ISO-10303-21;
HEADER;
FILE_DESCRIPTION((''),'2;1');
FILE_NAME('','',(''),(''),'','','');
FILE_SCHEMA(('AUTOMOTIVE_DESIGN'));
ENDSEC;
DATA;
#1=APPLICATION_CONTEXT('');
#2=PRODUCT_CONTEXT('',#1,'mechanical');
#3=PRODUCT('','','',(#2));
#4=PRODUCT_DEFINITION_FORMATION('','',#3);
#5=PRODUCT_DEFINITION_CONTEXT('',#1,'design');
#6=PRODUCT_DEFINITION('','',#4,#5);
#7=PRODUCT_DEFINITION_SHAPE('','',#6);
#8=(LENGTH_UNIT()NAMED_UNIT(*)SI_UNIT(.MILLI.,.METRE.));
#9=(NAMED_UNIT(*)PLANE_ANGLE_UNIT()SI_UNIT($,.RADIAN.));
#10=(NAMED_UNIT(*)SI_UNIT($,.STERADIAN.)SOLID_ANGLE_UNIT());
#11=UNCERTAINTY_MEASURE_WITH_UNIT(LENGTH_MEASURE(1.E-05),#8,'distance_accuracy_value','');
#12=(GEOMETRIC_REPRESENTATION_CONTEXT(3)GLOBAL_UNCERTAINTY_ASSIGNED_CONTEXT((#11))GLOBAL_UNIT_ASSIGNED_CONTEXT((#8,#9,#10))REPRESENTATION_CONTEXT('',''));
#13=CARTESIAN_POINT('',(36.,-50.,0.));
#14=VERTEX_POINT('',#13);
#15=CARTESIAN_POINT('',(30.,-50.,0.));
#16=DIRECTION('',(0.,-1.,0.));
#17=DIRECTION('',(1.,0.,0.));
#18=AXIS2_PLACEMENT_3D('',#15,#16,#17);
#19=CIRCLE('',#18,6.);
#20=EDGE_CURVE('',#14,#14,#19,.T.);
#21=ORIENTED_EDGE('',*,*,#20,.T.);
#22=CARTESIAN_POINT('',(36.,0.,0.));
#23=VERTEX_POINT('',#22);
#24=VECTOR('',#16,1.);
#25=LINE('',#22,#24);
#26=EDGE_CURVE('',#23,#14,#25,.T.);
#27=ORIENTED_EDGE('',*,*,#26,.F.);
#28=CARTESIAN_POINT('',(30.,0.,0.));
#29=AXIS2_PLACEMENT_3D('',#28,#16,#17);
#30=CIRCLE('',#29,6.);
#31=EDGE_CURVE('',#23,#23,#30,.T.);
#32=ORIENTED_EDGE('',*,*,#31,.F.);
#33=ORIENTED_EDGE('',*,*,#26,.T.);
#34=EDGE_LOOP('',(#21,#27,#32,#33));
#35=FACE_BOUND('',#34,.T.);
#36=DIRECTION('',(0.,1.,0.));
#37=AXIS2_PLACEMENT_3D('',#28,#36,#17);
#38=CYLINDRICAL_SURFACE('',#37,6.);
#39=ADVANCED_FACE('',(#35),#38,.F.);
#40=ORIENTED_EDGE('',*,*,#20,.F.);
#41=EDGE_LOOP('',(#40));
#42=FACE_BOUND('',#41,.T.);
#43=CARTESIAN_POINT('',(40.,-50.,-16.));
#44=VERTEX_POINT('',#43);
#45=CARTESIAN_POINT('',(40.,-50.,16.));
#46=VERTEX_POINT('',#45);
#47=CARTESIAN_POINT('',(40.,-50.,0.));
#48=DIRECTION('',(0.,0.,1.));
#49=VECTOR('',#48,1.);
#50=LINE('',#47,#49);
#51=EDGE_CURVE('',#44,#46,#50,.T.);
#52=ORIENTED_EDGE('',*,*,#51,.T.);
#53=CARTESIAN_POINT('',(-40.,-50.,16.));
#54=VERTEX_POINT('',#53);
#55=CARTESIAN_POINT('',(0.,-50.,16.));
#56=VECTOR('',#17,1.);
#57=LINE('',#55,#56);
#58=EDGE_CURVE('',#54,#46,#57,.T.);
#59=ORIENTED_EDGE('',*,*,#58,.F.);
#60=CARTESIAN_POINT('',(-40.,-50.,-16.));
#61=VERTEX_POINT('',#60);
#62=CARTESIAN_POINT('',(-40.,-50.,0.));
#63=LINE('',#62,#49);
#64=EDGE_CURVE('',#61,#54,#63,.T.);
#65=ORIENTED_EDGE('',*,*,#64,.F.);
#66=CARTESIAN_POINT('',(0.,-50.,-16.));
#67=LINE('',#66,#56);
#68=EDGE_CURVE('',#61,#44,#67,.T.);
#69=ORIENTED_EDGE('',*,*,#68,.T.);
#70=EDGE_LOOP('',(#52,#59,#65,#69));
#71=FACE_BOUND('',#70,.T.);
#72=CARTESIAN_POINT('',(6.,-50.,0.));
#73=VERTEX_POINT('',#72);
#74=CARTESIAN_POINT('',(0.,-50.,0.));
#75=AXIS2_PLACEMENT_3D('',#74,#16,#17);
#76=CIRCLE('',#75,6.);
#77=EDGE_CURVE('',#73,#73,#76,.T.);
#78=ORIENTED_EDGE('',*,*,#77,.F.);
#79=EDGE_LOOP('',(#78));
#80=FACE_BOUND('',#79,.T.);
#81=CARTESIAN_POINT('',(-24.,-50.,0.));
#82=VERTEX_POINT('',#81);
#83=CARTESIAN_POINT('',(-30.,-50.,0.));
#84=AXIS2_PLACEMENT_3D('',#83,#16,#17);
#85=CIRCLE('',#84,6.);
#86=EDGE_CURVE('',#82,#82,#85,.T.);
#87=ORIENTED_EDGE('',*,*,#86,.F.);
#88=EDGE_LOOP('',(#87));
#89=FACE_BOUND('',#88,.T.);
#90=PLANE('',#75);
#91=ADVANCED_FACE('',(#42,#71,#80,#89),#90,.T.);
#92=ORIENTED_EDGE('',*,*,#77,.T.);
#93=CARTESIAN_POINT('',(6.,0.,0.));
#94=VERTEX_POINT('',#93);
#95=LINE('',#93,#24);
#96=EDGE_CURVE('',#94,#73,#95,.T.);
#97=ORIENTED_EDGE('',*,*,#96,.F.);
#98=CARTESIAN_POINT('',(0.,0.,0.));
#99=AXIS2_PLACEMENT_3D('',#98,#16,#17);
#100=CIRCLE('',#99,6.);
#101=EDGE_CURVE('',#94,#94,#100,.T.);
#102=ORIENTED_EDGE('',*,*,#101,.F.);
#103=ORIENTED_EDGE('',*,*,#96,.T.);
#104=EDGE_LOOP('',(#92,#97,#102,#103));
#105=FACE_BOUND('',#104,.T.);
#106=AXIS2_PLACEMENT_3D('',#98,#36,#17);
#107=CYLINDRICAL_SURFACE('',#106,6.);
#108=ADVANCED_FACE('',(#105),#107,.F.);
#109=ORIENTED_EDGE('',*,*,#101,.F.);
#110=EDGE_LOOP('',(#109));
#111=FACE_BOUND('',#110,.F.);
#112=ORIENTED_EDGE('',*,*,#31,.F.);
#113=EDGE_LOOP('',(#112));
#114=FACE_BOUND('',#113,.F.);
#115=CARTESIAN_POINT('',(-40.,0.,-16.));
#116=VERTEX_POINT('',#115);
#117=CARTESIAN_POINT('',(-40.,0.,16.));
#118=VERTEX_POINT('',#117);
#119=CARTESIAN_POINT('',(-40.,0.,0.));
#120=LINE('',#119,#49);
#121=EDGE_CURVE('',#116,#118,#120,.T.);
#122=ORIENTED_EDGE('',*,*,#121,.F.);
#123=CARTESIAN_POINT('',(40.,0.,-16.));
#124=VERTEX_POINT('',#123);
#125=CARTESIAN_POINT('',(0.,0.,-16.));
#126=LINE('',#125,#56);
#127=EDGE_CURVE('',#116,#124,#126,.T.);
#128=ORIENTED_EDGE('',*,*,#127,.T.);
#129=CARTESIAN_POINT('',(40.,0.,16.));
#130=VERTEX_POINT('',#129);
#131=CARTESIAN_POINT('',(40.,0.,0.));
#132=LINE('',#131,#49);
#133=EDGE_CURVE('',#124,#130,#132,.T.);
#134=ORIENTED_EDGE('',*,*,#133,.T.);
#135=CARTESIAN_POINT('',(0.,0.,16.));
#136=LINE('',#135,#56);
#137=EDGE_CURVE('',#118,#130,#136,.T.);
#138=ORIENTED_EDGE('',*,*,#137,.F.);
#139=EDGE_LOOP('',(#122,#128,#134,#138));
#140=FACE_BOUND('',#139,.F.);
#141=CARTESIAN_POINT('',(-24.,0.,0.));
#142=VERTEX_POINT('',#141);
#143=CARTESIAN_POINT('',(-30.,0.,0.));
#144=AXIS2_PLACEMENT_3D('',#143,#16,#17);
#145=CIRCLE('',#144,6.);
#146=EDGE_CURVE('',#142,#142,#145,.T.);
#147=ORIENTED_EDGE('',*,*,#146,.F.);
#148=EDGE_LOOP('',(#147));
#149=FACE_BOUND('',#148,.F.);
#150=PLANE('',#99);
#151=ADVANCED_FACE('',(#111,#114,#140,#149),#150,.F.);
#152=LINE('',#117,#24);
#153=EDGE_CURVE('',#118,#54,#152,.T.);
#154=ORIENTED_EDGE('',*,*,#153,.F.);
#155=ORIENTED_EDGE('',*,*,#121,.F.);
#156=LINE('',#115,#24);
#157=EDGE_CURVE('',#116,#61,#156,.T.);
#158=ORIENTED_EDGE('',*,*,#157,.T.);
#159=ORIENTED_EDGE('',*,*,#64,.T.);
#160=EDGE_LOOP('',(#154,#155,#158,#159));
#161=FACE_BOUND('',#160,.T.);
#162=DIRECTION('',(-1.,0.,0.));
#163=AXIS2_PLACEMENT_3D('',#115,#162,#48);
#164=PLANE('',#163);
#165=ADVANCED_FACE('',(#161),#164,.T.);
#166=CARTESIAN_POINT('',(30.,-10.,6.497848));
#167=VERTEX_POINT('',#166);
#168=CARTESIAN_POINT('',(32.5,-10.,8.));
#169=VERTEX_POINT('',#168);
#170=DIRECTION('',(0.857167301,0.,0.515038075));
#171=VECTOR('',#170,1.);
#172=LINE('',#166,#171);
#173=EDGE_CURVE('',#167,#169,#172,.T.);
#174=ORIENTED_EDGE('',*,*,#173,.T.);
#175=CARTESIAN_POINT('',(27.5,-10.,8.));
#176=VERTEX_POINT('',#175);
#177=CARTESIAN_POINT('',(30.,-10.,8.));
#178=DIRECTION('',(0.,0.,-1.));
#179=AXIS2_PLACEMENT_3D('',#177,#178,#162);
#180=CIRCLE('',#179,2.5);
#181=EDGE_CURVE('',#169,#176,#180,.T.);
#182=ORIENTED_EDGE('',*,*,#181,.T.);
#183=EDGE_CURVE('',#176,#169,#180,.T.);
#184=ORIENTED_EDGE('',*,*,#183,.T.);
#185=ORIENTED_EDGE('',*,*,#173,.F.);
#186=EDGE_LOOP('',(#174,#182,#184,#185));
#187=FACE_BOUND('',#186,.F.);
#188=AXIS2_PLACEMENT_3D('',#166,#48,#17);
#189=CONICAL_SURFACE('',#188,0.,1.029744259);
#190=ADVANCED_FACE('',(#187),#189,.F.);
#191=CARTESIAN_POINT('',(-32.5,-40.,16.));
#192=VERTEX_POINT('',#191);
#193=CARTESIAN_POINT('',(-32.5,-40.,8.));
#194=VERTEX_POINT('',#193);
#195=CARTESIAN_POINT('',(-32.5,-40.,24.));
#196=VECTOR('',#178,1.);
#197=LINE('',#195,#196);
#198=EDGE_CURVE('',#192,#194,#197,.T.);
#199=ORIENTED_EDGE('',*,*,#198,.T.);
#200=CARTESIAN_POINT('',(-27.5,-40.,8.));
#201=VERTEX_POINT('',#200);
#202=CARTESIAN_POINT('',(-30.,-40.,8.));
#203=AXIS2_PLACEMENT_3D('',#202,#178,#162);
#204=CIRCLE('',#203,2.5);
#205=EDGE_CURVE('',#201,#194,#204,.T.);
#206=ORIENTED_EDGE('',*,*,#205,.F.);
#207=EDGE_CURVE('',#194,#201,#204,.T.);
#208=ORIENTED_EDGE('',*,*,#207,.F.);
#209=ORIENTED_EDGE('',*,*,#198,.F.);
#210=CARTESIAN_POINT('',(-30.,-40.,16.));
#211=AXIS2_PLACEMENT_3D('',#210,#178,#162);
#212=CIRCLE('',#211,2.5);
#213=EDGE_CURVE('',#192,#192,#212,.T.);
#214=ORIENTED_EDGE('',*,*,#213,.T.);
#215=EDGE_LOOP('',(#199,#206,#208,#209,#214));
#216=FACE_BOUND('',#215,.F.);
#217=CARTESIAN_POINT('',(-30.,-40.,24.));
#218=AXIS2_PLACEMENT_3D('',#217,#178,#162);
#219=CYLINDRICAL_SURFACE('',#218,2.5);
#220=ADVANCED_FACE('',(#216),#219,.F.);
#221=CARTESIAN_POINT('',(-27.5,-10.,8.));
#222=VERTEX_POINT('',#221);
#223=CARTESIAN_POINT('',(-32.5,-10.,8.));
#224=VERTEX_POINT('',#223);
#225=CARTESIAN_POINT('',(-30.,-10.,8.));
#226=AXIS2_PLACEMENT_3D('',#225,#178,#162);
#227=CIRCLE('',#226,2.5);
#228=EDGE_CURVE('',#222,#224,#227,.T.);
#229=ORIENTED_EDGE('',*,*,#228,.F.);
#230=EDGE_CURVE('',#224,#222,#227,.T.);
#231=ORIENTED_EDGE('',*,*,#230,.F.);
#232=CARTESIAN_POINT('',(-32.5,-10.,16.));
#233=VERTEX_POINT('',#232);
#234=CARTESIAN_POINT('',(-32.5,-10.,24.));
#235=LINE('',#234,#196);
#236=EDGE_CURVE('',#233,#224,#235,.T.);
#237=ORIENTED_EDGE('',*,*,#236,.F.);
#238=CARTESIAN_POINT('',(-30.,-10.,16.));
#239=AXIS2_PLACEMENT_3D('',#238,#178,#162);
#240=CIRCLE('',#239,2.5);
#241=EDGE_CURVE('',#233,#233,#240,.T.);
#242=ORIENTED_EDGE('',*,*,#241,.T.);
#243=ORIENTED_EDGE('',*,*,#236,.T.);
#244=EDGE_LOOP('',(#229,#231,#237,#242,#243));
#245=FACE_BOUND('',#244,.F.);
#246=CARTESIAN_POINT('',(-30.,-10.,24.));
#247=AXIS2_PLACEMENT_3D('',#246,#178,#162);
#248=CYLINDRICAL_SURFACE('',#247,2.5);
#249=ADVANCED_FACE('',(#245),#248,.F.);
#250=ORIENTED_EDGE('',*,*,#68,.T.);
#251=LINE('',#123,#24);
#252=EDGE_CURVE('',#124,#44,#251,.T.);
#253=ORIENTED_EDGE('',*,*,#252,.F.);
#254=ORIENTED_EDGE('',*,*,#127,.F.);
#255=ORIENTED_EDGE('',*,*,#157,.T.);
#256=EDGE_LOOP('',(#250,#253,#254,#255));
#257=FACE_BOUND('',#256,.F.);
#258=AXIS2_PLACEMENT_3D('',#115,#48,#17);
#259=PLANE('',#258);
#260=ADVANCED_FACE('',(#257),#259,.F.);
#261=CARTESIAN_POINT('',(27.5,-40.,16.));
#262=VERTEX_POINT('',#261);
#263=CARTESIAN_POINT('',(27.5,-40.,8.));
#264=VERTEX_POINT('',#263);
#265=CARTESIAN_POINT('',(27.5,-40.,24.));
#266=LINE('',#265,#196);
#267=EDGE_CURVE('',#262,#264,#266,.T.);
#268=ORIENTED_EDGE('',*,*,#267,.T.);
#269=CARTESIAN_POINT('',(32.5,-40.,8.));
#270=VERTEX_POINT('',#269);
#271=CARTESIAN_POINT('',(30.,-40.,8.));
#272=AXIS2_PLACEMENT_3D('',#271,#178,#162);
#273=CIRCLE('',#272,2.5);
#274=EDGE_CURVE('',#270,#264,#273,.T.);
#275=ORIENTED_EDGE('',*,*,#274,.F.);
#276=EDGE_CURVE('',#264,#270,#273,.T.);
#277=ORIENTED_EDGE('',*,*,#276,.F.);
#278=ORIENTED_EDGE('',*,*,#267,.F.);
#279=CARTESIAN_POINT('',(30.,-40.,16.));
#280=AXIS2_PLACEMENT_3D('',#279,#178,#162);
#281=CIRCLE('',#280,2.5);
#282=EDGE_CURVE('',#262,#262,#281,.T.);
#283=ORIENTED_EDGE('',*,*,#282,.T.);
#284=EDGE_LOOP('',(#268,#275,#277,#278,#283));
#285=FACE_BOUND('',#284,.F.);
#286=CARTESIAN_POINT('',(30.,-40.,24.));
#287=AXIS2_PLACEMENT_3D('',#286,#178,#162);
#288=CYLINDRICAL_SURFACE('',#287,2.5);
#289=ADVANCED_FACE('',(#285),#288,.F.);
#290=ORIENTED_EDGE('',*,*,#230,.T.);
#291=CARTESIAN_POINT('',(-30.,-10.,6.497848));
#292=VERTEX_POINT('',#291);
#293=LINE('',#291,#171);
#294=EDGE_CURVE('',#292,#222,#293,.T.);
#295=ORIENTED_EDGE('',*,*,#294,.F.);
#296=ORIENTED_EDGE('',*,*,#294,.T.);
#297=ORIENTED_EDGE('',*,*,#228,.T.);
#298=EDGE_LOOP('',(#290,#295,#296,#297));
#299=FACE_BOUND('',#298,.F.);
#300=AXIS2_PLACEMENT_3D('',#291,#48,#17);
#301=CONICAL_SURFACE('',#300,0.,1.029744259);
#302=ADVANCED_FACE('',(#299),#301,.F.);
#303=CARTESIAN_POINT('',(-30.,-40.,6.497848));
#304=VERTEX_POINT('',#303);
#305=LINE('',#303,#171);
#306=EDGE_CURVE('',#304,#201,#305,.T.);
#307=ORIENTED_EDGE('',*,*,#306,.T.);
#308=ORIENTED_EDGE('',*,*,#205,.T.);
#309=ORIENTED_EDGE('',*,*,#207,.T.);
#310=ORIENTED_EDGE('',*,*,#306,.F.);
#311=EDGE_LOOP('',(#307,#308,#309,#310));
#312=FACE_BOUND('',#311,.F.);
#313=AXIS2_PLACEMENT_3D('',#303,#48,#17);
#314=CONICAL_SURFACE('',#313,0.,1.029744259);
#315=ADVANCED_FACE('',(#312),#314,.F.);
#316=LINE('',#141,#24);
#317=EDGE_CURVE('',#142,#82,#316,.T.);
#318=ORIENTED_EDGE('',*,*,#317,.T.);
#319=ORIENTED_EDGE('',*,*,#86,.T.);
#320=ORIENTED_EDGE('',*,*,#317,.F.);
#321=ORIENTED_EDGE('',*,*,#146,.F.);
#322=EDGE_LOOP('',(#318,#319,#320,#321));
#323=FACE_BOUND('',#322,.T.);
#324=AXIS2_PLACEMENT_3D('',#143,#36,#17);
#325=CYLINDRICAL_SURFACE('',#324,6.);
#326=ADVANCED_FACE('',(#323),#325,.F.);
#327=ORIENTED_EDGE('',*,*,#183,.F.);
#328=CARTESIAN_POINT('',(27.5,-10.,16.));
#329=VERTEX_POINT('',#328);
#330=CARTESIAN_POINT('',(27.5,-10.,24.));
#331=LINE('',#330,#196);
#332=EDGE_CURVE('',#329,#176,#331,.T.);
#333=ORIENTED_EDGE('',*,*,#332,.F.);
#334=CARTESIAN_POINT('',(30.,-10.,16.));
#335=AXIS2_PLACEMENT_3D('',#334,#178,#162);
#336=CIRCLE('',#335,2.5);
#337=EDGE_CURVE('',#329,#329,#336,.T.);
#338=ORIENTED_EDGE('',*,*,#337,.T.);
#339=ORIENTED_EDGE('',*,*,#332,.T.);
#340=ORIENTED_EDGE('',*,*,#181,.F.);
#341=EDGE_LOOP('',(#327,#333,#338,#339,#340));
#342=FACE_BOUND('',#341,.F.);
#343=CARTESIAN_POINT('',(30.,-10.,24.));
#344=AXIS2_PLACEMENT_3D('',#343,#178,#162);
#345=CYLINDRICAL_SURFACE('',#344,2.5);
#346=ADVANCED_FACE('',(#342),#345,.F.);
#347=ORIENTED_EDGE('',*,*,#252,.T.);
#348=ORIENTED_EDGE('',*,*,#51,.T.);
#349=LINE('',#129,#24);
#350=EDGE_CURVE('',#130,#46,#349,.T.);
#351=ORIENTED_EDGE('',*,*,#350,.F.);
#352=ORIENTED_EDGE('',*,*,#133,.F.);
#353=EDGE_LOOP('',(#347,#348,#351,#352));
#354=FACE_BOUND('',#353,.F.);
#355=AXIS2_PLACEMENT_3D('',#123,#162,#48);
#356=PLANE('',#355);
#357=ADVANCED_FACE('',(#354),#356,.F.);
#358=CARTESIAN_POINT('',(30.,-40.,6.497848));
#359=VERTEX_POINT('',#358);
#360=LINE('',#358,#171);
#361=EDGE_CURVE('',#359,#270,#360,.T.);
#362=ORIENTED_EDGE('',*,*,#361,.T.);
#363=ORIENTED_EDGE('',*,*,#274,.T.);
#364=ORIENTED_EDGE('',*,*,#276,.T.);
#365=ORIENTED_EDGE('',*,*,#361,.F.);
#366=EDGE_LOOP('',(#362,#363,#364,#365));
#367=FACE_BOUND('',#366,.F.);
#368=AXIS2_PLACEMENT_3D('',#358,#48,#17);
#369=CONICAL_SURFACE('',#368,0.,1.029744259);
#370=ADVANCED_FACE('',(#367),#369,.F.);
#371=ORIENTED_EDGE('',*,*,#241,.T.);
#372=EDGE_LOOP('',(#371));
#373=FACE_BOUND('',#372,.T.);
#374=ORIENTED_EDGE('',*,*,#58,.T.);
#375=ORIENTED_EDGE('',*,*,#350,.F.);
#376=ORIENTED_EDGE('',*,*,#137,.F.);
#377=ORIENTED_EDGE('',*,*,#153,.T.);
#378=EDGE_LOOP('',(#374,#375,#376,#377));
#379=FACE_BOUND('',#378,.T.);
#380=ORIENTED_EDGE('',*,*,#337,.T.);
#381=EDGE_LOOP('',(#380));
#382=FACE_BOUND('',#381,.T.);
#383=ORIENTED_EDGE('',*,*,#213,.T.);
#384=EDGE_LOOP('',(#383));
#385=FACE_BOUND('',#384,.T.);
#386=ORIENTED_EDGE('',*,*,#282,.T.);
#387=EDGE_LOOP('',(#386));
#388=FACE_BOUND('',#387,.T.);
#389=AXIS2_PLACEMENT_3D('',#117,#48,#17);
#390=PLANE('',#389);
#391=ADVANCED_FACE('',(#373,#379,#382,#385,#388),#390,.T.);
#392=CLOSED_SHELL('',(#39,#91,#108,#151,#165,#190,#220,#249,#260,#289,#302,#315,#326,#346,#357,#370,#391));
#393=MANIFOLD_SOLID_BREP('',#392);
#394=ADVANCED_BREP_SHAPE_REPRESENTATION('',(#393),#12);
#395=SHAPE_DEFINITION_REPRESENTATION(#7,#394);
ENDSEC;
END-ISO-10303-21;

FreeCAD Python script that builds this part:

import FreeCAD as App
import Part
import Sketcher
from FreeCAD import Vector
Q = App.Units.Quantity

doc = App.newDocument("Part")
body = doc.addObject("PartDesign::Body", "Body")

# Sketch on XZ plane
sketch1 = body.newObject("Sketcher::SketchObject", "Sketch")
sketch1.AttachmentSupport = (doc.getObject("XZ_Plane"), [""])
sketch1.MapMode = "FlatFace"
sketch1.addGeometry([
    Part.LineSegment(Vector(-40, 16, 0), Vector(-40, -16, 0)),  # 0
    Part.LineSegment(Vector(-40, -16, 0), Vector(40, -16, 0)),  # 1
    Part.LineSegment(Vector(40, -16, 0), Vector(40, 16, 0)),  # 2
    Part.LineSegment(Vector(40, 16, 0), Vector(-40, 16, 0)),  # 3
    Part.Circle(Vector(-30, 0, 0), Vector(0, 0, 1), 6),  # 4
    Part.Circle(Vector(0, 0, 0), Vector(0, 0, 1), 6),  # 5
    Part.Circle(Vector(30, 0, 0), Vector(0, 0, 1), 6),  # 6
], False)
sketch1.addConstraint([
    Sketcher.Constraint("Coincident", 0, 2, 1, 1),
    Sketcher.Constraint("Coincident", 1, 2, 2, 1),
    Sketcher.Constraint("Coincident", 2, 2, 3, 1),
    Sketcher.Constraint("Coincident", 3, 2, 0, 1),
    Sketcher.Constraint("Vertical", 0),
    Sketcher.Constraint("Horizontal", 1),
    Sketcher.Constraint("Vertical", 2),
    Sketcher.Constraint("Horizontal", 3),
    Sketcher.Constraint("Coincident", 5, 3, -1, 1),
    Sketcher.Constraint("Equal", 4, 5),
    Sketcher.Constraint("Equal", 5, 6),
    Sketcher.Constraint("Symmetric", 4, 3, 6, 3, -1, 1),
    Sketcher.Constraint("Symmetric", 0, 2, 2, 2, -1, 1),
    Sketcher.Constraint("PointOnObject", 4, 3, -1),
    Sketcher.Constraint("Diameter", 4, Q("12 mm")),
    Sketcher.Constraint("DistanceX", 1, 1, 1, 2, Q("80 mm")),
    Sketcher.Constraint("DistanceY", 0, 2, 0, 1, Q("32 mm")),
    Sketcher.Constraint("DistanceX", 4, 3, -1, 1, Q("30 mm")),
])
pad1 = body.newObject("PartDesign::Pad", "Pad")
pad1.Profile = sketch1
pad1.Length = 50

# Sketch on XY plane
sketch2 = body.newObject("Sketcher::SketchObject", "Sketch001")
sketch2.AttachmentSupport = (doc.getObject("XY_Plane"), [""])
sketch2.MapMode = "FlatFace"
sketch2.AttachmentOffset = App.Placement(Vector(0, 0, 16), App.Rotation())
sketch2.addGeometry([
    Part.Circle(Vector(-30, -40, 0), Vector(0, 0, 1), 2.5),
    Part.Circle(Vector(-30, -10, 0), Vector(0, 0, 1), 2.5),
    Part.Circle(Vector(30, -40, 0), Vector(0, 0, 1), 2.5),
    Part.Circle(Vector(30, -10, 0), Vector(0, 0, 1), 2.5),
], False)
sketch2.addConstraint([
    Sketcher.Constraint("Equal", 0, 1),
    Sketcher.Constraint("Equal", 1, 2),
    Sketcher.Constraint("Equal", 2, 3),
    Sketcher.Constraint("Symmetric", 0, 3, 2, 3, -2),
    Sketcher.Constraint("Symmetric", 1, 3, 3, 3, -2),
    Sketcher.Constraint("Vertical", 0, 3, 1, 3),
    Sketcher.Constraint("Diameter", 0, Q("5 mm")),
    Sketcher.Constraint("DistanceX", 0, 3, -1, 1, Q("30 mm")),
    Sketcher.Constraint("DistanceY", 0, 3, -1, 1, Q("40 mm")),
    Sketcher.Constraint("DistanceY", 1, 3, -1, 1, Q("10 mm")),
])
doc.recompute()
hole = body.newObject("PartDesign::Hole", "Hole")
hole.Profile = sketch2
hole.ThreadType = "None"
hole.Diameter = 5
hole.DepthType = "Dimension"
hole.Depth = 8
hole.DrillPoint = "Angled"
hole.DrillPointAngle = 118

doc.recompute()
